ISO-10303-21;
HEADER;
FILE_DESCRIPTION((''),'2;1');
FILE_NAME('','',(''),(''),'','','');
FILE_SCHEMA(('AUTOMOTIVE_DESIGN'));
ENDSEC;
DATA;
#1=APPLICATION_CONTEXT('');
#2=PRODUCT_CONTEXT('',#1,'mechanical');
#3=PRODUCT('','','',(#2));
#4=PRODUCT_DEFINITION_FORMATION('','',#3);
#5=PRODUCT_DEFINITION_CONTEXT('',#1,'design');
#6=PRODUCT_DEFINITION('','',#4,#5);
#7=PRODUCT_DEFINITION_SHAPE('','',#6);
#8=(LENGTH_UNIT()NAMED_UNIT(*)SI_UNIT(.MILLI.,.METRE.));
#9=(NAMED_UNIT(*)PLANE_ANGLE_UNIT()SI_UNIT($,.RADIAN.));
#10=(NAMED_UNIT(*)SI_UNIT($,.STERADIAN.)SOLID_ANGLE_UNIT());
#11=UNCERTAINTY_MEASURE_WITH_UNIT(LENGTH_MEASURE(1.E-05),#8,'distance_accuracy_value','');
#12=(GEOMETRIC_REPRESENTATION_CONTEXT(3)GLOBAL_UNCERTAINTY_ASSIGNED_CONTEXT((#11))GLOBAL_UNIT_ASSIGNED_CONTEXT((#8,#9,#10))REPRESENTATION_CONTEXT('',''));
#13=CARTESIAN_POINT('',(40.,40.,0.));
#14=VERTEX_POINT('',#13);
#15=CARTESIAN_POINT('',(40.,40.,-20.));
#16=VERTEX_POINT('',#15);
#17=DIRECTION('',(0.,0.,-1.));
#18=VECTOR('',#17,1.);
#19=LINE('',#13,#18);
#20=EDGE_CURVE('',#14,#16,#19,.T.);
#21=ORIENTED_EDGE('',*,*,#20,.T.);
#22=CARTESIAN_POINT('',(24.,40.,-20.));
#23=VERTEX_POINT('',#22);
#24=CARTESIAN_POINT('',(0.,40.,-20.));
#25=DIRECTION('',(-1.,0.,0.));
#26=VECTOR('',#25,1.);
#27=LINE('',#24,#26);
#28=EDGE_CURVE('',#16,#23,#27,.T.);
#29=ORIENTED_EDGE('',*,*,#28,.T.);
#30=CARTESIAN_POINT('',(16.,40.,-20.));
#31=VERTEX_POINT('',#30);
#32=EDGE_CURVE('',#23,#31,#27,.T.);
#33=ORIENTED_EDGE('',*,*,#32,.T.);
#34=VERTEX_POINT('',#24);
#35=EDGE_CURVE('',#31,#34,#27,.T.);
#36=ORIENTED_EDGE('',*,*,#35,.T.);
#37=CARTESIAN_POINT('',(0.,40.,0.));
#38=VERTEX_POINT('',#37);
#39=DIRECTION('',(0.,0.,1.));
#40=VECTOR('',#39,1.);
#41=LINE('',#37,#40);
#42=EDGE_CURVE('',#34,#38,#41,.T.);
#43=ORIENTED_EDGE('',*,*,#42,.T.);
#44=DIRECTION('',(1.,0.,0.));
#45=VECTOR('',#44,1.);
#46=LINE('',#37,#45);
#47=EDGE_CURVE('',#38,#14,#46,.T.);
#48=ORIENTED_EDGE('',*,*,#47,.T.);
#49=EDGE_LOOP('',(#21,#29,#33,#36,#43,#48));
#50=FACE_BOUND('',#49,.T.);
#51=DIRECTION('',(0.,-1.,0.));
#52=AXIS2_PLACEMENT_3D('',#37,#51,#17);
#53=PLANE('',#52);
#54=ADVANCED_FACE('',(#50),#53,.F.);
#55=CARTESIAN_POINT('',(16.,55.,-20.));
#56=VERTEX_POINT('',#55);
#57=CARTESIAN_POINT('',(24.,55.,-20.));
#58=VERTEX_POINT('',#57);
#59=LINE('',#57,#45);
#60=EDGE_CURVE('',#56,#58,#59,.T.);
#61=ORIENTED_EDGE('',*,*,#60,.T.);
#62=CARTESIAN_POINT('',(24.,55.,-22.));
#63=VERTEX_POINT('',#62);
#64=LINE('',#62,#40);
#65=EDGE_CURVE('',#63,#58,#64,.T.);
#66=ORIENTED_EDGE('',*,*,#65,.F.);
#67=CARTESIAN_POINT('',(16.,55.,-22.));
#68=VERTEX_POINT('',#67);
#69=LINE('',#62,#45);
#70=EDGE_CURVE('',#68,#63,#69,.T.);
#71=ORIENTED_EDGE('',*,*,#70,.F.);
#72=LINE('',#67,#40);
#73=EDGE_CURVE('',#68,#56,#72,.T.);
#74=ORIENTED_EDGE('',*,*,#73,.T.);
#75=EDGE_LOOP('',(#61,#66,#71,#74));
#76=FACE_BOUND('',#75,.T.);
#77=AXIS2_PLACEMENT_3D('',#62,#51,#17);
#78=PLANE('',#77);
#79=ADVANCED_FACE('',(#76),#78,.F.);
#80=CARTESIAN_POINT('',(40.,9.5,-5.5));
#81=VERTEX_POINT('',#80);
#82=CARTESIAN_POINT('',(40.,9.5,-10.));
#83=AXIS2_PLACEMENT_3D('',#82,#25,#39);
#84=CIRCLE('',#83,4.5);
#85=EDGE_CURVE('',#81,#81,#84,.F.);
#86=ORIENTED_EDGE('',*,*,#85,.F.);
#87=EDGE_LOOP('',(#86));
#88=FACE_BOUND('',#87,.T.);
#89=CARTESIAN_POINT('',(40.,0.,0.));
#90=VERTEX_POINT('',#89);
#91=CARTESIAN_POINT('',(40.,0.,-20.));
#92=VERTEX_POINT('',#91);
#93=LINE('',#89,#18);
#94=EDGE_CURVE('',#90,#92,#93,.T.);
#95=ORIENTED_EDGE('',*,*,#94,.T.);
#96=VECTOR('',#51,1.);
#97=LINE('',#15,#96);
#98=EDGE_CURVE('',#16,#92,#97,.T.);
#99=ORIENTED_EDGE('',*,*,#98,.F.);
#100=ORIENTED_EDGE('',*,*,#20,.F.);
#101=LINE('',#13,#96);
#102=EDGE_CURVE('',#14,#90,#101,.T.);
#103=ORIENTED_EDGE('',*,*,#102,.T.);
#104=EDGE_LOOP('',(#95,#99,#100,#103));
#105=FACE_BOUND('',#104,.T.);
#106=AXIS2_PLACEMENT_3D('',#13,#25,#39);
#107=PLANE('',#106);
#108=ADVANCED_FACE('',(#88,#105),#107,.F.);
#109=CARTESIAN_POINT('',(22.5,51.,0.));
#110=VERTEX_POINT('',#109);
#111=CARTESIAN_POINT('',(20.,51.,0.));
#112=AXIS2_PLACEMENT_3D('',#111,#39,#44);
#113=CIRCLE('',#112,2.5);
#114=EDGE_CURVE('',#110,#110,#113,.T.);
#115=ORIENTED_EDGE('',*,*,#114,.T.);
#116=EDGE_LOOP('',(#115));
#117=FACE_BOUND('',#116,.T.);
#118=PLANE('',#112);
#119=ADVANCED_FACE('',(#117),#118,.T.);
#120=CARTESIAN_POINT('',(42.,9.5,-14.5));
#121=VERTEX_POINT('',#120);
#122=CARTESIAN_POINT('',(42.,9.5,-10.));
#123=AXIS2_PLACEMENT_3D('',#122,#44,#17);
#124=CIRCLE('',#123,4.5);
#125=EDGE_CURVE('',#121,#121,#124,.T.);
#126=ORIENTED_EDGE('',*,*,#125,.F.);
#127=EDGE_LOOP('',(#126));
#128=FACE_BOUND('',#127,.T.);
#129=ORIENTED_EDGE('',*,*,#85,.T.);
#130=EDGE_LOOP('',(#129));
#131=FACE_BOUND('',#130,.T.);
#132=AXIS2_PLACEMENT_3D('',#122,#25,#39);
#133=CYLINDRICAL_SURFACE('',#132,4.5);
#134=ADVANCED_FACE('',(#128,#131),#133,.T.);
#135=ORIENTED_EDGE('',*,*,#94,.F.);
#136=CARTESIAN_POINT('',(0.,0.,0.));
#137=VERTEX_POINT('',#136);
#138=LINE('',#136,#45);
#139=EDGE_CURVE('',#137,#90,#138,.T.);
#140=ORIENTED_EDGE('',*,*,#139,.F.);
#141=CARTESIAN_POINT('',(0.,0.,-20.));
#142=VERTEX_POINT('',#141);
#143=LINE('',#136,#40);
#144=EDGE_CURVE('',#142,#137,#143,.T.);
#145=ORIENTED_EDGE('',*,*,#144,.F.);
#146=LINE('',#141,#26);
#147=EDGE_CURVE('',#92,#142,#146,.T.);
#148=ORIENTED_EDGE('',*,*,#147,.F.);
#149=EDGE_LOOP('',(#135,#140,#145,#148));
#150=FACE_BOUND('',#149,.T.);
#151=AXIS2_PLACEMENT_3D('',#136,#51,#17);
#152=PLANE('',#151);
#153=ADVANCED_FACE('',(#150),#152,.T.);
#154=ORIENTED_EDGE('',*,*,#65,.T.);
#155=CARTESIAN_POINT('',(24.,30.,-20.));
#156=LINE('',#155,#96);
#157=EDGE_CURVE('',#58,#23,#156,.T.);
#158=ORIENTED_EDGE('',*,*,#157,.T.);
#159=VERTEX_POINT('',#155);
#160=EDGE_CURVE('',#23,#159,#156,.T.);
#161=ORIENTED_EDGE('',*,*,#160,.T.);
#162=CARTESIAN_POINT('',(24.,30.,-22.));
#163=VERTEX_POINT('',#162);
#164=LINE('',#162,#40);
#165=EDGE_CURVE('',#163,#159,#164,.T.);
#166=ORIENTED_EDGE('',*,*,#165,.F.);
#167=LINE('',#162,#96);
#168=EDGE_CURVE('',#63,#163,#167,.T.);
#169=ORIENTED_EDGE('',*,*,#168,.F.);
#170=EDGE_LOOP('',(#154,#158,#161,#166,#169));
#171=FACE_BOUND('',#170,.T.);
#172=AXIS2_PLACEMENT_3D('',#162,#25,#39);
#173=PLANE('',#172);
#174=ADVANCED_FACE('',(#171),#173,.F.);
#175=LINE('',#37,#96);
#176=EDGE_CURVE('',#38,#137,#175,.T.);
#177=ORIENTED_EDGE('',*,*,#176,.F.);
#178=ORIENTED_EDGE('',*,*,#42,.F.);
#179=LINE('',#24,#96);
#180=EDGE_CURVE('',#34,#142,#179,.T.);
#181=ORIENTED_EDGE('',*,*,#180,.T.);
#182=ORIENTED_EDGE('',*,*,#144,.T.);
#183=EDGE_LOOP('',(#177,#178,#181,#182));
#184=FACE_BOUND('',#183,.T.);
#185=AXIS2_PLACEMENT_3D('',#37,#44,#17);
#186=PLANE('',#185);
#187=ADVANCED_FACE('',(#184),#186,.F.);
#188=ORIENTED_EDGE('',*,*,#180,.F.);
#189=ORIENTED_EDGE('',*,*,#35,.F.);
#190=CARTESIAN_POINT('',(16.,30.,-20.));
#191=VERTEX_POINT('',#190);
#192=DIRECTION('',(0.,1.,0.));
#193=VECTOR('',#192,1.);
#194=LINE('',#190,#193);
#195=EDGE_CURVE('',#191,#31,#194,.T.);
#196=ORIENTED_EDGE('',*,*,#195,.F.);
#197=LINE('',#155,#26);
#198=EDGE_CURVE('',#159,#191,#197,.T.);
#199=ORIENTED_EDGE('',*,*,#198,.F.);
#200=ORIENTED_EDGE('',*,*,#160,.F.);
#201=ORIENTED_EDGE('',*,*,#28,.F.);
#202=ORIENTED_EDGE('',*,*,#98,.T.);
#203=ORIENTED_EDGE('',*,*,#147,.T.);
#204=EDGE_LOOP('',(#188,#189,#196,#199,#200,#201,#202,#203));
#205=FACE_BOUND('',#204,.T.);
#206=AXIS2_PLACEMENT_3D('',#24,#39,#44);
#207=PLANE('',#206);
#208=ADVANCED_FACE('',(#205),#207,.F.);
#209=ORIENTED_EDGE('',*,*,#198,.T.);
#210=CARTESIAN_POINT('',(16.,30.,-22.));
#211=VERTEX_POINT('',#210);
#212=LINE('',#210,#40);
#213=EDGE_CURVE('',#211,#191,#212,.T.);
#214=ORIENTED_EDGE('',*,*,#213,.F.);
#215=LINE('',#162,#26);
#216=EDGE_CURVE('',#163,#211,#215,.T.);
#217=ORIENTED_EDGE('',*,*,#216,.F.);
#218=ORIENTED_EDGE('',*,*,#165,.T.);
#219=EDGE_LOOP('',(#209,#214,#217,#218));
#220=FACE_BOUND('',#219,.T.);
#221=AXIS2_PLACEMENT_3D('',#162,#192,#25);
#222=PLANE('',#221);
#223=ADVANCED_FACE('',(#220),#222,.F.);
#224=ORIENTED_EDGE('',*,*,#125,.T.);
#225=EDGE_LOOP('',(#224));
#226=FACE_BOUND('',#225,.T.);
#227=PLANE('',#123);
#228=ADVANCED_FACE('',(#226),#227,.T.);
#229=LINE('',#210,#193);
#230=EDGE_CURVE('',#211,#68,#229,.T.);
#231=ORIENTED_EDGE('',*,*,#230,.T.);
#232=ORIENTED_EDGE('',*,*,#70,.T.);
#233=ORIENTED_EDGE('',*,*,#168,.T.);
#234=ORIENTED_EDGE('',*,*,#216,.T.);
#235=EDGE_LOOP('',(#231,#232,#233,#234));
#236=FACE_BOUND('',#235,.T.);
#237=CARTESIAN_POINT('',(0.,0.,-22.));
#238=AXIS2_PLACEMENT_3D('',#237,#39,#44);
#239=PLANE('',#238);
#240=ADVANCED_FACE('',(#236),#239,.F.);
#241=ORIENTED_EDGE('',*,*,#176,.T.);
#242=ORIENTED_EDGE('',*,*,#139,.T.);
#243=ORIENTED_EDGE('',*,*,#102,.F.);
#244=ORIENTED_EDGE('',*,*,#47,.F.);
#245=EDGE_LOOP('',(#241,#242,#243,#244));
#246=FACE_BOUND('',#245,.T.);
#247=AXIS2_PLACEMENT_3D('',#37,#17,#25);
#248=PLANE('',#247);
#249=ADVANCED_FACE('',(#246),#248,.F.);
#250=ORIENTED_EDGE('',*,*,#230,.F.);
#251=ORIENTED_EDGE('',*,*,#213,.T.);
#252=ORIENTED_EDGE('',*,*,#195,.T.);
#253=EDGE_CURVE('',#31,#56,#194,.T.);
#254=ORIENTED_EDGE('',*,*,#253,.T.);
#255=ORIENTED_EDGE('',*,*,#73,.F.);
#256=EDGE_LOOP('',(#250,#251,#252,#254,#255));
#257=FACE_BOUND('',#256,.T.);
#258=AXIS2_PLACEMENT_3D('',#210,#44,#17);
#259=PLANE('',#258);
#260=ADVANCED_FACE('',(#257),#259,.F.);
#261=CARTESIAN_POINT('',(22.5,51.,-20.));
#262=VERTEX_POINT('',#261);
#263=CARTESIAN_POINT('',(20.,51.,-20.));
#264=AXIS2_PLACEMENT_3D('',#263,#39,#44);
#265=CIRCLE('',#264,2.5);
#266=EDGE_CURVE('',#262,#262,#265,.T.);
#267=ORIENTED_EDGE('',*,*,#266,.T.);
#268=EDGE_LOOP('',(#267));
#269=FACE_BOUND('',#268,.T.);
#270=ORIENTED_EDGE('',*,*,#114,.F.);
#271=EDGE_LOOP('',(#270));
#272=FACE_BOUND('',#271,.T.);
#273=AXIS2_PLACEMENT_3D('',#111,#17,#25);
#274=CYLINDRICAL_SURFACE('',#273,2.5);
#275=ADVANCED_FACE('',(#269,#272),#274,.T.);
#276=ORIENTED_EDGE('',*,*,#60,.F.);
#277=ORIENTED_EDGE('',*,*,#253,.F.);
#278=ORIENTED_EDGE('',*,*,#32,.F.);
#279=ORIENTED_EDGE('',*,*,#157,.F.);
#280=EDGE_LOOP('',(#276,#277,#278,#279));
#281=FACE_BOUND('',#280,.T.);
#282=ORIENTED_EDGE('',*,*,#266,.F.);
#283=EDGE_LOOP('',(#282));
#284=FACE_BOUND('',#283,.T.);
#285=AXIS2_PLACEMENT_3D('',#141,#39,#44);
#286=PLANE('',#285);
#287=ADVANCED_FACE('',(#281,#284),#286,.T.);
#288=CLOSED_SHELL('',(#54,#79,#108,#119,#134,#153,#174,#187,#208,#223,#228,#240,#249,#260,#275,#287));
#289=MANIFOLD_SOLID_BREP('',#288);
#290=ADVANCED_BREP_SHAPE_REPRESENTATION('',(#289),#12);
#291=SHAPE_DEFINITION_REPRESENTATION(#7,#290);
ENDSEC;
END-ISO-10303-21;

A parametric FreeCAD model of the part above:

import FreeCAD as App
import Part
import Sketcher

V = App.Vector

doc = App.newDocument("Part")
body = doc.addObject("PartDesign::Body", "Body")

sketch1 = doc.addObject("Sketcher::SketchObject", "Sketch")
body.addObject(sketch1)
sketch1.AttachmentSupport = (doc.XZ_Plane, [""])
sketch1.MapMode = "FlatFace"
sketch1.addGeometry([
    Part.LineSegment(V(0, -20, 0), V(0, 0, 0)),
    Part.LineSegment(V(0, 0, 0), V(40, 0, 0)),
    Part.LineSegment(V(40, 0, 0), V(40, -20, 0)),
    Part.LineSegment(V(40, -20, 0), V(0, -20, 0)),
], False)
sketch1.addConstraint([
    Sketcher.Constraint("Coincident", 0, 2, 1, 1),
    Sketcher.Constraint("Coincident", 1, 2, 2, 1),
    Sketcher.Constraint("Coincident", 2, 2, 3, 1),
    Sketcher.Constraint("Coincident", 3, 2, 0, 1),
    Sketcher.Constraint("Vertical", 0),
    Sketcher.Constraint("Horizontal", 1),
    Sketcher.Constraint("Vertical", 2),
    Sketcher.Constraint("Horizontal", 3),
    Sketcher.Constraint("Coincident", 0, 2, -1, 1),
    Sketcher.Constraint("DistanceX", 1, 1, 1, 2, 40.0),
    Sketcher.Constraint("DistanceY", 0, 1, 0, 2, 20.0),
])
pad1 = doc.addObject("PartDesign::Pad", "Pad")
body.addObject(pad1)
pad1.Profile = sketch1
pad1.Length = 40
pad1.Reversed = True

sketch2 = doc.addObject("Sketcher::SketchObject", "Sketch001")
body.addObject(sketch2)
sketch2.AttachmentSupport = (doc.YZ_Plane, [""])
sketch2.MapMode = "FlatFace"
sketch2.AttachmentOffset = App.Placement(V(0, 0, 40), App.Rotation())
sketch2.addGeometry(Part.Circle(V(9.5, -10, 0), V(0, 0, 1), 4.5), False)
sketch2.addConstraint([
    Sketcher.Constraint("Diameter", 0, 9.0),
    Sketcher.Constraint("DistanceY", 0, 3, -1, 1, 10.0),
    Sketcher.Constraint("DistanceX", -1, 1, 0, 3, 9.5),
])
pad2 = doc.addObject("PartDesign::Pad", "Pad001")
body.addObject(pad2)
pad2.Profile = sketch2
pad2.Length = 2

sketch3 = doc.addObject("Sketcher::SketchObject", "Sketch002")
body.addObject(sketch3)
sketch3.AttachmentSupport = (doc.XY_Plane, [""])
sketch3.MapMode = "FlatFace"
sketch3.AttachmentOffset = App.Placement(V(0, 0, -20), App.Rotation())
sketch3.addGeometry([
    Part.LineSegment(V(24, 55, 0), V(24, 30, 0)),
    Part.LineSegment(V(24, 30, 0), V(16, 30, 0)),
    Part.LineSegment(V(16, 30, 0), V(16, 55, 0)),
    Part.LineSegment(V(16, 55, 0), V(24, 55, 0)),
], False)
sketch3.addConstraint([
    Sketcher.Constraint("Coincident", 0, 2, 1, 1),
    Sketcher.Constraint("Coincident", 1, 2, 2, 1),
    Sketcher.Constraint("Coincident", 2, 2, 3, 1),
    Sketcher.Constraint("Coincident", 3, 2, 0, 1),
    Sketcher.Constraint("Vertical", 0),
    Sketcher.Constraint("Horizontal", 1),
    Sketcher.Constraint("Vertical", 2),
    Sketcher.Constraint("Horizontal", 3),
    Sketcher.Constraint("DistanceX", 1, 2, 1, 1, 8.0),
    Sketcher.Constraint("DistanceY", 0, 2, 0, 1, 25.0),
    Sketcher.Constraint("DistanceX", -1, 1, 0, 2, 24.0),
    Sketcher.Constraint("DistanceY", -1, 1, 0, 2, 30.0),
])
pad3 = doc.addObject("PartDesign::Pad", "Pad002")
body.addObject(pad3)
pad3.Profile = sketch3
pad3.Length = 2
pad3.Reversed = True

sketch4 = doc.addObject("Sketcher::SketchObject", "Sketch003")
body.addObject(sketch4)
sketch4.AttachmentSupport = (doc.XY_Plane, [""])
sketch4.MapMode = "FlatFace"
sketch4.AttachmentOffset = App.Placement(V(0, 0, -20), App.Rotation())
sketch4.addGeometry(Part.Circle(V(20, 51, 0), V(0, 0, 1), 2.5), False)
sketch4.addConstraint([
    Sketcher.Constraint("Diameter", 0, 5.0),
    Sketcher.Constraint("DistanceX", -1, 1, 0, 3, 20.0),
    Sketcher.Constraint("DistanceY", -1, 1, 0, 3, 51.0),
])
pad4 = doc.addObject("PartDesign::Pad", "Pad003")
body.addObject(pad4)
pad4.Profile = sketch4
pad4.Length = 20

doc.recompute()
